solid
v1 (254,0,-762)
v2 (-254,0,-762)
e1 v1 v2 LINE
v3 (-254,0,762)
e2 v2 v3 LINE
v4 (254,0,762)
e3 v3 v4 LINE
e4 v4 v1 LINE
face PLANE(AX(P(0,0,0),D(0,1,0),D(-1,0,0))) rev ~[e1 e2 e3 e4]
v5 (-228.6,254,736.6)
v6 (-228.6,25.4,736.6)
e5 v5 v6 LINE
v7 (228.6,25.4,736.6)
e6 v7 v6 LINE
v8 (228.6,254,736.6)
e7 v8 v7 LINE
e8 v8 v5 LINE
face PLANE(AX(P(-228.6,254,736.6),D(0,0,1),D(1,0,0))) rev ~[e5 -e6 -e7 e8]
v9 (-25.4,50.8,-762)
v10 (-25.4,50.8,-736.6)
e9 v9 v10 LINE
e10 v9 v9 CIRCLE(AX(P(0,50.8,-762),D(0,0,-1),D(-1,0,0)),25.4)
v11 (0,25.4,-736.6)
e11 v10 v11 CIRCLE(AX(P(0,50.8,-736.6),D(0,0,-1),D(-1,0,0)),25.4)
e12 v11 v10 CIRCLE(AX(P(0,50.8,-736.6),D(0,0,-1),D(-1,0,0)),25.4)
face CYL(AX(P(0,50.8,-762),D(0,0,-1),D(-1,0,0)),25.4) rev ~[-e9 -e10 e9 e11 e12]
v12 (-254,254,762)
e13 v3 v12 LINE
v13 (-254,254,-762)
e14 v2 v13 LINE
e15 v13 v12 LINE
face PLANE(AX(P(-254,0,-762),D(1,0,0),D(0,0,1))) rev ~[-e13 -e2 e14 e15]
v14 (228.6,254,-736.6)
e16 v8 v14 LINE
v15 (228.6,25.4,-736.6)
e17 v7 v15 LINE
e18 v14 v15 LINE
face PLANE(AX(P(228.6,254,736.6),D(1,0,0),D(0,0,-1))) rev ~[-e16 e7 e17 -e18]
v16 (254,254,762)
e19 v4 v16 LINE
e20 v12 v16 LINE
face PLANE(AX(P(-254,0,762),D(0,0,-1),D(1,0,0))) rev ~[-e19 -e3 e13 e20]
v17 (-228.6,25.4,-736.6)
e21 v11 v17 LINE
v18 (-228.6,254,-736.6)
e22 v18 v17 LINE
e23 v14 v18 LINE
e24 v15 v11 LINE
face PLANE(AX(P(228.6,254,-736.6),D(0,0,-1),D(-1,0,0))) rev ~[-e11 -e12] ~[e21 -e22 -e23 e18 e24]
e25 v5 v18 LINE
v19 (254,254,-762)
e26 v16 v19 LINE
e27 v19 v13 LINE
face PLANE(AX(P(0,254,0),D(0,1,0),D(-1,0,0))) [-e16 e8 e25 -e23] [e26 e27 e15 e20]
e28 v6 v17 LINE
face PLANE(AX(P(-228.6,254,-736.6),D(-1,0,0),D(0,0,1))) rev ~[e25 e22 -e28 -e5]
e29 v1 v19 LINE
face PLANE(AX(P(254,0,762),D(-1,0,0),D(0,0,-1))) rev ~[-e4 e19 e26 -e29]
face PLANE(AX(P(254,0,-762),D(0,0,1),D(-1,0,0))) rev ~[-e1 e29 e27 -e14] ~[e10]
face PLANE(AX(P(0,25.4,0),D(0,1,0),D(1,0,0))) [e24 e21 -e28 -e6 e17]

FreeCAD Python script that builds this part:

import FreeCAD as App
import Part
import Sketcher
Q = App.Units.Quantity


def add_polygon(sketch, points):
    """Adds a closed chain of lines whose ends are joined by coincident constraints."""
    first, n = sketch.GeometryCount, len(points)
    for a, b in zip(points, points[1:] + points[:1]):
        sketch.addGeometry(Part.LineSegment(App.Vector(*a, 0), App.Vector(*b, 0)), False)
    for i in range(n):
        sketch.addConstraint(Sketcher.Constraint("Coincident", first + i, 2, first + (i + 1) % n, 1))

doc = App.newDocument("Part")
body = doc.addObject("PartDesign::Body", "Body")

# Sketch on XZ plane
sketch1 = body.newObject("Sketcher::SketchObject", "Sketch")
sketch1.AttachmentSupport = (doc.getObject("XZ_Plane"), [""])
sketch1.MapMode = "FlatFace"
add_polygon(sketch1, [(-254, -762), (-254, 762), (254, 762), (254, -762)])  # lines 0-3
sketch1.addConstraint([
    Sketcher.Constraint("Vertical", 0),
    Sketcher.Constraint("Horizontal", 1),
    Sketcher.Constraint("Vertical", 2),
    Sketcher.Constraint("Horizontal", 3),
    Sketcher.Constraint("Symmetric", 0, 2, 2, 2, -1, 1),
    Sketcher.Constraint("DistanceX", 1, 1, 1, 2, Q("20 in")),
    Sketcher.Constraint("DistanceY", 0, 1, 0, 2, Q("60 in")),
])
pad1 = body.newObject("PartDesign::Pad", "Pad")
pad1.Profile = sketch1
pad1.Length = Q("10 in")
pad1.Reversed = True

# Sketch on XZ plane
sketch2 = body.newObject("Sketcher::SketchObject", "Sketch001")
sketch2.AttachmentSupport = (doc.getObject("XZ_Plane"), [""])
sketch2.MapMode = "FlatFace"
sketch2.AttachmentOffset = App.Placement(App.Vector(0, 0, -10 * 25.4), App.Rotation())
add_polygon(sketch2, [(-228.6, 736.6), (228.6, 736.6), (228.6, -736.6), (-228.6, -736.6)])  # lines 0-3
sketch2.addConstraint([
    Sketcher.Constraint("Horizontal", 0),
    Sketcher.Constraint("Vertical", 1),
    Sketcher.Constraint("Horizontal", 2),
    Sketcher.Constraint("Vertical", 3),
    Sketcher.Constraint("Symmetric", 0, 2, 2, 2, -1, 1),
    Sketcher.Constraint("DistanceX", 0, 1, 0, 2, Q("18 in")),
    Sketcher.Constraint("DistanceY", 1, 2, 1, 1, Q("58 in")),
])
pocket1 = body.newObject("PartDesign::Pocket", "Pocket")
pocket1.Profile = sketch2
pocket1.Length = Q("9 in")
pocket1.Reversed = True

# Sketch on XY plane
sketch3 = body.newObject("Sketcher::SketchObject", "Sketch002")
sketch3.AttachmentSupport = (doc.getObject("XY_Plane"), [""])
sketch3.MapMode = "FlatFace"
sketch3.AttachmentOffset = App.Placement(App.Vector(0, 0, -30 * 25.4), App.Rotation())
sketch3.addGeometry(Part.Circle(App.Vector(0, 50.8, 0), App.Vector(0, 0, 1), 25.4), False)
sketch3.addConstraint([
    Sketcher.Constraint("PointOnObject", 0, 3, -2),
    Sketcher.Constraint("Diameter", 0, Q("2 in")),
    Sketcher.Constraint("DistanceY", -1, 1, 0, 3, Q("2 in")),
])
pocket2 = body.newObject("PartDesign::Pocket", "Pocket001")
pocket2.Profile = sketch3
pocket2.Length = Q("9 in")
pocket2.Reversed = True

doc.recompute()
